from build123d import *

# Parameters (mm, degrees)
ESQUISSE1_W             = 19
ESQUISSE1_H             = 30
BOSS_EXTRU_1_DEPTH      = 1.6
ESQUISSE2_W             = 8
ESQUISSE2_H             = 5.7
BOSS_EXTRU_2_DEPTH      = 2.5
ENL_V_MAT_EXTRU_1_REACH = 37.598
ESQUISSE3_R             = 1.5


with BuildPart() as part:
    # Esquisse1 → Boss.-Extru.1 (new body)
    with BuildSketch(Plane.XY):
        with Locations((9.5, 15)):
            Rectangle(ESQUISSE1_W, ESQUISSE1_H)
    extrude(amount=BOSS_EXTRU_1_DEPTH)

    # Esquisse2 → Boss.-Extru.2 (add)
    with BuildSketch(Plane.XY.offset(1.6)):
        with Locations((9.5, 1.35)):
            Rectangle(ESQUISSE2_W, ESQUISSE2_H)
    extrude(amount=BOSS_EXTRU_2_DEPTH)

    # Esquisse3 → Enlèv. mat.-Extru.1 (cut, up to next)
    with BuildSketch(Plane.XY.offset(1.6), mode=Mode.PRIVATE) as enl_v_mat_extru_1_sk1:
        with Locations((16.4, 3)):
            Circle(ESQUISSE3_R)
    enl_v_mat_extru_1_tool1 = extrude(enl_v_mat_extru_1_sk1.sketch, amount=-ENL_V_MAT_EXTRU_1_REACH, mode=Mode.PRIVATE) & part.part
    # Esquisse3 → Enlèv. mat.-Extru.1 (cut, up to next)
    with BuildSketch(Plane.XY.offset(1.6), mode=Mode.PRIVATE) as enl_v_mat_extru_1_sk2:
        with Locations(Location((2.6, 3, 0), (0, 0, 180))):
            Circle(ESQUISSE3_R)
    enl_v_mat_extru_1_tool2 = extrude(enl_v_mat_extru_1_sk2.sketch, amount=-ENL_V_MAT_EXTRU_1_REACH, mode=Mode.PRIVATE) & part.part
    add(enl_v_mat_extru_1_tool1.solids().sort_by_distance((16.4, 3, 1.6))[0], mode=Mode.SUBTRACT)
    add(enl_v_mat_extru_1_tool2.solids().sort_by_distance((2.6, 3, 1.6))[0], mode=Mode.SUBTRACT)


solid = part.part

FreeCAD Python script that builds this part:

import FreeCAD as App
import Part
import Sketcher

V = App.Vector
Q = App.Units.Quantity

doc = App.newDocument("Part")
params = doc.addObject("Spreadsheet::Sheet", "Params")
for row, (alias, value) in enumerate([
    ("sketch1_width", "19 mm"),
    ("sketch1_height", "30 mm"),
    ("pad1_length", "1.6 mm"),
    ("sketch2_width", "8 mm"),
    ("sketch2_height", "5.7 mm"),
    ("pad2_length", "2.5 mm"),
    ("sketch3_diameter", "3 mm"),
    ("sketch4_diameter", "3 mm"),
], start=1):
    params.set(f"A{row}", alias)
    params.set(f"B{row}", "=" + value)
    params.setAlias(f"B{row}", alias)

body = doc.addObject("PartDesign::Body", "Body")

sketch1 = doc.addObject("Sketcher::SketchObject", "Sketch")
body.addObject(sketch1)
sketch1.AttachmentSupport = (doc.XY_Plane, [""])
sketch1.MapMode = "FlatFace"
sketch1.addGeometry([
    Part.LineSegment(V(0, 30, 0), V(0, 0, 0)),
    Part.LineSegment(V(0, 0, 0), V(19, 0, 0)),
    Part.LineSegment(V(19, 0, 0), V(19, 30, 0)),
    Part.LineSegment(V(19, 30, 0), V(0, 30, 0)),
], False)
sketch1.addConstraint([
    Sketcher.Constraint("Coincident", 0, 2, 1, 1),
    Sketcher.Constraint("Coincident", 1, 2, 2, 1),
    Sketcher.Constraint("Coincident", 2, 2, 3, 1),
    Sketcher.Constraint("Coincident", 3, 2, 0, 1),
    Sketcher.Constraint("Vertical", 0),
    Sketcher.Constraint("Horizontal", 1),
    Sketcher.Constraint("Vertical", 2),
    Sketcher.Constraint("Horizontal", 3),
    Sketcher.Constraint("Coincident", 0, 2, -1, 1),
    Sketcher.Constraint("DistanceX", 1, 1, 1, 2, Q("19 mm")),
    Sketcher.Constraint("DistanceY", 0, 2, 0, 1, Q("30 mm")),
])
sketch1.setExpression("Constraints[9]", "Params.sketch1_width")
sketch1.setExpression("Constraints[10]", "Params.sketch1_height")
pad1 = doc.addObject("PartDesign::Pad", "Pad")
body.addObject(pad1)
pad1.Profile = sketch1
pad1.setExpression("Length", "Params.pad1_length")

sketch2 = doc.addObject("Sketcher::SketchObject", "Sketch001")
body.addObject(sketch2)
sketch2.AttachmentSupport = (doc.XY_Plane, [""])
sketch2.MapMode = "FlatFace"
sketch2.AttachmentOffset = App.Placement(V(0, 0, 1.6), App.Rotation())
sketch2.addGeometry([
    Part.LineSegment(V(6, 4, 0), V(6, -2, 0)),
    Part.LineSegment(V(6, -2, 0), V(14, -2, 0)),
    Part.LineSegment(V(14, -2, 0), V(14, 4, 0)),
    Part.LineSegment(V(14, 4, 0), V(6, 4, 0)),
], False)
sketch2.addConstraint([
    Sketcher.Constraint("Coincident", 0, 2, 1, 1),
    Sketcher.Constraint("Coincident", 1, 2, 2, 1),
    Sketcher.Constraint("Coincident", 2, 2, 3, 1),
    Sketcher.Constraint("Coincident", 3, 2, 0, 1),
    Sketcher.Constraint("Vertical", 0),
    Sketcher.Constraint("Horizontal", 1),
    Sketcher.Constraint("Vertical", 2),
    Sketcher.Constraint("Horizontal", 3),
    Sketcher.Constraint("DistanceX", 1, 1, 1, 2, Q("8 mm")),
    Sketcher.Constraint("DistanceY", 0, 2, 0, 1, Q("5.7 mm")),
    Sketcher.Constraint("DistanceX", -1, 1, 0, 2, Q("5.5 mm")),
    Sketcher.Constraint("DistanceY", 0, 2, -1, 1, Q("1.5 mm")),
])
sketch2.setExpression("Constraints[8]", "Params.sketch2_width")
sketch2.setExpression("Constraints[9]", "Params.sketch2_height")
pad2 = doc.addObject("PartDesign::Pad", "Pad001")
body.addObject(pad2)
pad2.Profile = sketch2
pad2.setExpression("Length", "Params.pad2_length")

sketch3 = doc.addObject("Sketcher::SketchObject", "Sketch002")
body.addObject(sketch3)
sketch3.AttachmentSupport = (doc.XY_Plane, [""])
sketch3.MapMode = "FlatFace"
sketch3.AttachmentOffset = App.Placement(V(0, 0, 1.6), App.Rotation())
sketch3.addGeometry(Part.Circle(V(16.4, 3, 0), V(0, 0, 1), 1.5), False)
sketch3.addConstraint([
    Sketcher.Constraint("Diameter", 0, Q("3 mm")),
    Sketcher.Constraint("DistanceY", -1, 1, 0, 3, Q("3 mm")),
    Sketcher.Constraint("DistanceX", -1, 1, 0, 3, Q("16.4 mm")),
])
sketch3.setExpression("Constraints[0]", "Params.sketch3_diameter")
pocket1 = doc.addObject("PartDesign::Pocket", "Pocket")
body.addObject(pocket1)
pocket1.Profile = sketch3
pocket1.Type = "UpToFirst"

sketch4 = doc.addObject("Sketcher::SketchObject", "Sketch003")
body.addObject(sketch4)
sketch4.AttachmentSupport = (doc.XY_Plane, [""])
sketch4.MapMode = "FlatFace"
sketch4.AttachmentOffset = App.Placement(V(0, 0, 1.6), App.Rotation())
sketch4.addGeometry(Part.Circle(V(2.6, 3, 0), V(0, 0, 1), 1.5), False)
sketch4.addConstraint([
    Sketcher.Constraint("Diameter", 0, Q("3 mm")),
    Sketcher.Constraint("DistanceY", -1, 1, 0, 3, Q("3 mm")),
    Sketcher.Constraint("DistanceX", -1, 1, 0, 3, Q("2.6 mm")),
])
sketch4.setExpression("Constraints[0]", "Params.sketch4_diameter")
pocket2 = doc.addObject("PartDesign::Pocket", "Pocket001")
body.addObject(pocket2)
pocket2.Profile = sketch4
pocket2.Type = "UpToFirst"

doc.recompute()
